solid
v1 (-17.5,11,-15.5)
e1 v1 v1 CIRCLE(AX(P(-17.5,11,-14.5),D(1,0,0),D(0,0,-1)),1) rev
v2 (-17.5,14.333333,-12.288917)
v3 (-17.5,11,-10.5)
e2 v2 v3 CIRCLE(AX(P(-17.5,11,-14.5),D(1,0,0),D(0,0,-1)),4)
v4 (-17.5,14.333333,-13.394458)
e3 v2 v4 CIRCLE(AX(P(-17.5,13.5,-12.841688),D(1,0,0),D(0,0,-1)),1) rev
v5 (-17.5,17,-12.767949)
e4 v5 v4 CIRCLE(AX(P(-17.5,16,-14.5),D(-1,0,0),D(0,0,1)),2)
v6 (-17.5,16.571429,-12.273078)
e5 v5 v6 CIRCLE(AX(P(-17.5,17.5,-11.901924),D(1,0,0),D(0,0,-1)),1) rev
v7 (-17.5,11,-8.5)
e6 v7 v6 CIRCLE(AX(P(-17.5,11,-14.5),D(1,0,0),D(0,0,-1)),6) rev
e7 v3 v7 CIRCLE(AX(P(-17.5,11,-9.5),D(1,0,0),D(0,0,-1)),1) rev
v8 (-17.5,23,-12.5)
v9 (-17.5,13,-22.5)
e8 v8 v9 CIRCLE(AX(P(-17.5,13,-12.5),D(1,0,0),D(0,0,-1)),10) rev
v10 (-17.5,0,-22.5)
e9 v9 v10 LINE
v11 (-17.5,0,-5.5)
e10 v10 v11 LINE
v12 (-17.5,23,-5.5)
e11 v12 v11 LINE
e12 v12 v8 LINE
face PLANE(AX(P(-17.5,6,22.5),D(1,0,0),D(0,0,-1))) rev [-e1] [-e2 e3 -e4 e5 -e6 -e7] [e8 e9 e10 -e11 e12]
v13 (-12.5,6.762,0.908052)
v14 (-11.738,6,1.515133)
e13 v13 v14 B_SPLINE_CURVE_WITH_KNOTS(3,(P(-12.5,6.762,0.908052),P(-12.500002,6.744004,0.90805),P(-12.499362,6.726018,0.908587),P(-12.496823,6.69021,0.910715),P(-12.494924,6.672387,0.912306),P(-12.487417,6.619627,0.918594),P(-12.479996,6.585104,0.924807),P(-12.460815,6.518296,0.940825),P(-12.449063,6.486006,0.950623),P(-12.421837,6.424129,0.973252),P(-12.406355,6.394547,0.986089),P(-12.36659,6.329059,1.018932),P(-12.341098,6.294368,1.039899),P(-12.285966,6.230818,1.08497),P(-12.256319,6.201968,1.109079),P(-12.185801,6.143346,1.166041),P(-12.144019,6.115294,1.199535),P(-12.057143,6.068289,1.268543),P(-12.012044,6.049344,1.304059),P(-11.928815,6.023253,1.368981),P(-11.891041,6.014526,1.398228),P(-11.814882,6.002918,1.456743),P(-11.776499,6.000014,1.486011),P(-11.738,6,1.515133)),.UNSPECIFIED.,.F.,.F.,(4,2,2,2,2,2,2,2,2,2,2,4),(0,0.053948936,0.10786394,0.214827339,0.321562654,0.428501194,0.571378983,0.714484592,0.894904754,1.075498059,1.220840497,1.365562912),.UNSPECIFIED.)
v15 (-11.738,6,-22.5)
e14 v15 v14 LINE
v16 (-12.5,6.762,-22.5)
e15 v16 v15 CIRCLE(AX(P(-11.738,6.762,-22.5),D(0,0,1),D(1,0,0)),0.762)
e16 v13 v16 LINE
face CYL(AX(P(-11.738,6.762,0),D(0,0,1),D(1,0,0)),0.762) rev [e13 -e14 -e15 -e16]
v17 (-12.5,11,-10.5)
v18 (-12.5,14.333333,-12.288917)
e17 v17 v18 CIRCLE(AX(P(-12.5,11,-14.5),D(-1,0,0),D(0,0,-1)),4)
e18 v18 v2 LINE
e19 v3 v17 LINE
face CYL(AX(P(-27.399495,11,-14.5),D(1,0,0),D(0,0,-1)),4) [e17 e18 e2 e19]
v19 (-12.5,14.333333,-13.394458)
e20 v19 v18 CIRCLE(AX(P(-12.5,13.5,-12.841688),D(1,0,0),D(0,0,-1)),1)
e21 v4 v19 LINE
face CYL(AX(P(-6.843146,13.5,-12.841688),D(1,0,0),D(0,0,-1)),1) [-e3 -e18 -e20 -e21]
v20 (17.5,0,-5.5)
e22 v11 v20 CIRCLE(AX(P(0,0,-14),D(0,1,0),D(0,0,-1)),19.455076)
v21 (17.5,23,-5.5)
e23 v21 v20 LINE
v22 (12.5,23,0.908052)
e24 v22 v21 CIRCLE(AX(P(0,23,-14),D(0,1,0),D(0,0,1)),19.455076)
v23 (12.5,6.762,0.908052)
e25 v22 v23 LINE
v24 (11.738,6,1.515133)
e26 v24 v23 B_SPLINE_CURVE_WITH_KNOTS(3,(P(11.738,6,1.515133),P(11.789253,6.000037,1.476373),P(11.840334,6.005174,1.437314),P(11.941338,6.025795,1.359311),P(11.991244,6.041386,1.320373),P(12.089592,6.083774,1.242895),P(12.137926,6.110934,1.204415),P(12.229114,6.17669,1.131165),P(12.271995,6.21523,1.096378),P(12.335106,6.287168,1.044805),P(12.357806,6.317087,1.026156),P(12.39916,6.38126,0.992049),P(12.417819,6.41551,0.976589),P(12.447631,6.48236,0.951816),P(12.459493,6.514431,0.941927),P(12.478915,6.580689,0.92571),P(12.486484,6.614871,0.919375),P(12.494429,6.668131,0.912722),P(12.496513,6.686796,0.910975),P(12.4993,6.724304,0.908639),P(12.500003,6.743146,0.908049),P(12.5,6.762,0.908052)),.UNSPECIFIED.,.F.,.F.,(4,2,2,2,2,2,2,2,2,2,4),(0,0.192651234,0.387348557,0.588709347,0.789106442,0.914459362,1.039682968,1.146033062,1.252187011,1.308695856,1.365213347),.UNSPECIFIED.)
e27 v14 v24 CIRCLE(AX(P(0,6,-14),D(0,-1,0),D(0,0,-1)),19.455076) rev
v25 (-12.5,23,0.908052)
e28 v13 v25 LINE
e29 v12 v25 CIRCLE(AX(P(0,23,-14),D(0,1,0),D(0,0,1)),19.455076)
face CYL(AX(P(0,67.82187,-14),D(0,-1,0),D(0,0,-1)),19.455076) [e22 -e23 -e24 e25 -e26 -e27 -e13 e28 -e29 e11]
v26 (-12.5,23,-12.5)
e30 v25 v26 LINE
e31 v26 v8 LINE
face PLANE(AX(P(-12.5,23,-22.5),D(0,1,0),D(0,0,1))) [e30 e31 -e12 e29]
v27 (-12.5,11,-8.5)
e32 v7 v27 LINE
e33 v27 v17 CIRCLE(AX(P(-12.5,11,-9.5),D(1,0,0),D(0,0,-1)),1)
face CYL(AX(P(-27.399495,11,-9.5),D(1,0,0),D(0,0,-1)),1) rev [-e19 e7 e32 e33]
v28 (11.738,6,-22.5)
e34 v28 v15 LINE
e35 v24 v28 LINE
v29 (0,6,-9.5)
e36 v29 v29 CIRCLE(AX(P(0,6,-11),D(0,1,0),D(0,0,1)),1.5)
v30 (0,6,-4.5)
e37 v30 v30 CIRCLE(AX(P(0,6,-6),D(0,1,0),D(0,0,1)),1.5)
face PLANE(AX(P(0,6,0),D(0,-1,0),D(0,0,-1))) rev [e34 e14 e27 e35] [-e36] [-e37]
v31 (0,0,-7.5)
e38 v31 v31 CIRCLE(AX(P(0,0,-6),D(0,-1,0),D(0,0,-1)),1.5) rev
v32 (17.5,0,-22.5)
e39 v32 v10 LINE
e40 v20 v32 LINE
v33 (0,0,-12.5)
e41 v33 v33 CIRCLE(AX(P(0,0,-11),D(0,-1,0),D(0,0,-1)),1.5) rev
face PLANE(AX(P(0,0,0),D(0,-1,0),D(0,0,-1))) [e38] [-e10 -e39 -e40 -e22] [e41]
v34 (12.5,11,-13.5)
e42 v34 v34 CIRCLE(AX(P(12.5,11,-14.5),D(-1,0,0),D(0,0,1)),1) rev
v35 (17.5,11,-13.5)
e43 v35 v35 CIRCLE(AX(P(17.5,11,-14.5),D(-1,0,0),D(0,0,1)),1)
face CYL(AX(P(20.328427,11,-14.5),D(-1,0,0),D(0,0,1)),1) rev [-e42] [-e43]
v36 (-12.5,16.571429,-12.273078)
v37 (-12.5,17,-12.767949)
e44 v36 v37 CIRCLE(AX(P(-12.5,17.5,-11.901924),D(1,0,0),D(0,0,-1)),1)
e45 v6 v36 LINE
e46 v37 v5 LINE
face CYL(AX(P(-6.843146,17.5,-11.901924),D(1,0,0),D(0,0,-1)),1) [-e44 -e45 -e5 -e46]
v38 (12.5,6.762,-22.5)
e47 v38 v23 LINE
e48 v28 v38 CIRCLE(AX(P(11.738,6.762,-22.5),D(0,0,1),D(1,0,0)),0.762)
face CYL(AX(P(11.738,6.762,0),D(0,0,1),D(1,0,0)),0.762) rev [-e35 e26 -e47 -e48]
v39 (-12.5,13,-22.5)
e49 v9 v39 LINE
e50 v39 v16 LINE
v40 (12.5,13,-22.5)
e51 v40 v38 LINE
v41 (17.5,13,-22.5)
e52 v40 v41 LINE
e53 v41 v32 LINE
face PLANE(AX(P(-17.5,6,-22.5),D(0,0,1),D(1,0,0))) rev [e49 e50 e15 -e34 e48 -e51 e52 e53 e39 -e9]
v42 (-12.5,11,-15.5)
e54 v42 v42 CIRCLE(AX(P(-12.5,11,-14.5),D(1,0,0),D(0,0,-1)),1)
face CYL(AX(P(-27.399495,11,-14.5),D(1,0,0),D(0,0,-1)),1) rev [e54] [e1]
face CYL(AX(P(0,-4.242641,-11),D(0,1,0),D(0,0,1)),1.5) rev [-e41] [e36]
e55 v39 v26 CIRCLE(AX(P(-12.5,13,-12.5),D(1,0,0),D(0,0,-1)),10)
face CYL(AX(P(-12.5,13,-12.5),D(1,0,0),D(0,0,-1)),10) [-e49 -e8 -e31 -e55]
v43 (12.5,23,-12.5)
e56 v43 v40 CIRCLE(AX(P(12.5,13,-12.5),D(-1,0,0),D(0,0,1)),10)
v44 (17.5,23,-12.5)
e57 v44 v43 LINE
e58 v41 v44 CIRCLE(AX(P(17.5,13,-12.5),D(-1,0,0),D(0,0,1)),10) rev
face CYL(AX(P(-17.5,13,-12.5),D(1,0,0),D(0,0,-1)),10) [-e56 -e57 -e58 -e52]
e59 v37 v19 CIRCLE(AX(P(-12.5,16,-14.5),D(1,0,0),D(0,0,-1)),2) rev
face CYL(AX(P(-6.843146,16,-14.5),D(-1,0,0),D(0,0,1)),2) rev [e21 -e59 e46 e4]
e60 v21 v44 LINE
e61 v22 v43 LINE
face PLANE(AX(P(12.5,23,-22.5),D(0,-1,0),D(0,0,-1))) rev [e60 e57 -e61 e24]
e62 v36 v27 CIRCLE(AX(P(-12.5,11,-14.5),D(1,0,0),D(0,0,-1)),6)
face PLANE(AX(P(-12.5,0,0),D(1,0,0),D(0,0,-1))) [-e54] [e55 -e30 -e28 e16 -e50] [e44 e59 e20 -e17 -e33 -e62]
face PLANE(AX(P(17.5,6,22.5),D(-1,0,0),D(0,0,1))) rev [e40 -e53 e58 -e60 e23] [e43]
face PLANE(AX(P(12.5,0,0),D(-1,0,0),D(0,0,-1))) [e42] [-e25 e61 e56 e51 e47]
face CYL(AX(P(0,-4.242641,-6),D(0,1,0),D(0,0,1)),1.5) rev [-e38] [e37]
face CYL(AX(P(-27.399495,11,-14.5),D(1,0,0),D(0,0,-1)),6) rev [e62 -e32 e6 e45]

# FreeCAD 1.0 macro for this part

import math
import FreeCAD as App
import Part
import Sketcher


def edges_at(feature, points):
    """Names of the edges that pass closest to the given points."""
    edges = feature.Shape.Edges
    near = lambda p: min(range(len(edges)), key=lambda i: edges[i].distToShape(Part.Vertex(*p))[0])
    return sorted({f"Edge{near(p) + 1}" for p in points})


def add_polygon(sketch, points):
    """Adds a closed chain of lines whose ends are joined by coincident constraints."""
    first, n = sketch.GeometryCount, len(points)
    for a, b in zip(points, points[1:] + points[:1]):
        sketch.addGeometry(Part.LineSegment(App.Vector(*a, 0), App.Vector(*b, 0)), False)
    for i in range(n):
        sketch.addConstraint(Sketcher.Constraint("Coincident", first + i, 2, first + (i + 1) % n, 1))

doc = App.newDocument("Part")
params = doc.addObject("Spreadsheet::Sheet", "Params")
for row, (alias, value) in enumerate([
    ("sketch1_width", "35 mm"),
    ("sketch1_height", "45 mm"),
    ("pad1_length", "6 mm"),
    ("sketch2_width", "17 mm"),
    ("sketch2_height", "45 mm"),
    ("pad2_length", "5 mm"),
    ("sketch3_diameter", "2 mm"),
    ("sketch3_radius", "6 mm"),
    ("pocket1_length", "5 mm"),
    ("sketch4_diameter", "2 mm"),
    ("pocket2_length", "30 mm"),
    ("sketch5_diameter", "4 mm"),
    ("pocket3_length", "5 mm"),
    ("fillet_radius", "0.762 mm"),
    ("fillet2_radius", "10 mm"),
    ("fillet3_radius", "1 mm"),
    ("sketch6_width", "35 mm"),
    ("sketch6_height", "28 mm"),
    ("pocket4_length", "23 mm"),
    ("sketch7_diameter", "3 mm"),
    ("pocket5_length", "6 mm"),
], start=1):
    params.set(f"A{row}", alias)
    params.set(f"B{row}", "=" + value)
    params.setAlias(f"B{row}", alias)

body = doc.addObject("PartDesign::Body", "Body")

# Sketch on XZ plane
sketch1 = body.newObject("Sketcher::SketchObject", "Sketch")
sketch1.AttachmentSupport = (doc.getObject("XZ_Plane"), [""])
sketch1.MapMode = "FlatFace"
add_polygon(sketch1, [(-18, -22), (-18, 22), (18, 22), (18, -22)])  # lines 0-3
sketch1.addConstraint([
    Sketcher.Constraint("Vertical", 0),
    Sketcher.Constraint("Horizontal", 1),
    Sketcher.Constraint("Vertical", 2),
    Sketcher.Constraint("Horizontal", 3),
    Sketcher.Constraint("Symmetric", 0, 2, 2, 2, -1, 1),
    Sketcher.Constraint("DistanceX", 1, 1, 1, 2, 35.0),
    Sketcher.Constraint("DistanceY", 0, 1, 0, 2, 45.0),
])
sketch1.setExpression("Constraints[9]", "Params.sketch1_width")
sketch1.setExpression("Constraints[10]", "Params.sketch1_height")
pad1 = body.newObject("PartDesign::Pad", "Pad")
pad1.Profile = sketch1
pad1.setExpression("Length", "Params.pad1_length")
pad1.Reversed = True

# Sketch on YZ plane
sketch2 = body.newObject("Sketcher::SketchObject", "Sketch001")
sketch2.AttachmentSupport = (doc.getObject("YZ_Plane"), [""])
sketch2.MapMode = "FlatFace"
sketch2.AttachmentOffset = App.Placement(App.Vector(0, 0, -17.5), App.Rotation())
add_polygon(sketch2, [(23, -22), (6, -22), (6, 22), (23, 22)])  # lines 0-3
sketch2.addConstraint([
    Sketcher.Constraint("Horizontal", 0),
    Sketcher.Constraint("Vertical", 1),
    Sketcher.Constraint("Horizontal", 2),
    Sketcher.Constraint("Vertical", 3),
    Sketcher.Constraint("DistanceX", 0, 2, 0, 1, 17.0),
    Sketcher.Constraint("DistanceY", 1, 1, 1, 2, 45.0),
    Sketcher.Constraint("DistanceX", -1, 1, 0, 2, 6.0),
    Sketcher.Constraint("DistanceY", 0, 2, -1, 1, 22.5),
])
sketch2.setExpression("Constraints[8]", "Params.sketch2_width")
sketch2.setExpression("Constraints[9]", "Params.sketch2_height")
pad2 = body.newObject("PartDesign::Pad", "Pad001")
pad2.Profile = sketch2
pad2.setExpression("Length", "Params.pad2_length")
doc.recompute()

mirrored = body.newObject("PartDesign::Mirrored", "Mirrored")
mirrored.Originals = [pad2]
mirrored.MirrorPlane = (doc.getObject("YZ_Plane"), [""])
body.Tip = mirrored

# Sketch on YZ plane
sketch3 = body.newObject("Sketcher::SketchObject", "Sketch002")
sketch3.AttachmentSupport = (doc.getObject("YZ_Plane"), [""])
sketch3.MapMode = "FlatFace"
sketch3.AttachmentOffset = App.Placement(App.Vector(0, 0, -12.5), App.Rotation())
sketch3.addGeometry([
    Part.Circle(App.Vector(11, -14.5, 0), App.Vector(0, 0, 1), 1),  # 0
    Part.ArcOfCircle(Part.Circle(App.Vector(11, -14.5, 0), App.Vector(0, 0, 1), 6), math.radians(0), math.radians(90)),  # 1
    Part.ArcOfCircle(Part.Circle(App.Vector(11, -9.5, 0), App.Vector(0, 0, 1), 1), math.radians(90), math.radians(270)),  # 2
    Part.ArcOfCircle(Part.Circle(App.Vector(11, -14.5, 0), App.Vector(0, 0, 1), 4), math.radians(0), math.radians(90)),  # 3
    Part.ArcOfCircle(Part.Circle(App.Vector(16, -14.5, 0), App.Vector(0, 0, 1), 1), math.radians(180), math.radians(360)),  # 4
], False)
sketch3.addConstraint([
    Sketcher.Constraint("Tangent", 1, 2, 2, 1),
    Sketcher.Constraint("Tangent", 2, 2, 3, 2),
    Sketcher.Constraint("Tangent", 3, 1, 4, 1),
    Sketcher.Constraint("Tangent", 4, 2, 1, 1),
    Sketcher.Constraint("Coincident", 1, 3, 0, 3),
    Sketcher.Constraint("Coincident", 3, 3, 0, 3),
    Sketcher.Constraint("Equal", 0, 2),
    Sketcher.Constraint("Horizontal", 3, 3, 4, 3),
    Sketcher.Constraint("Vertical", 1, 3, 2, 3),
    Sketcher.Constraint("Diameter", 0, 2.0),
    Sketcher.Constraint("Radius", 1, 6.0),
    Sketcher.Constraint("DistanceX", -1, 1, 0, 3, 11.0),
    Sketcher.Constraint("DistanceY", 0, 3, -1, 1, 14.5),
])
sketch3.setExpression("Constraints[9]", "Params.sketch3_diameter")
sketch3.setExpression("Constraints[10]", "Params.sketch3_radius")
pocket1 = body.newObject("PartDesign::Pocket", "Pocket")
pocket1.Profile = sketch3
pocket1.setExpression("Length", "Params.pocket1_length")

# Sketch on YZ plane
sketch4 = body.newObject("Sketcher::SketchObject", "Sketch003")
sketch4.AttachmentSupport = (doc.getObject("YZ_Plane"), [""])
sketch4.MapMode = "FlatFace"
sketch4.AttachmentOffset = App.Placement(App.Vector(0, 0, -12.5), App.Rotation())
sketch4.addGeometry(Part.Circle(App.Vector(11, -14.5, 0), App.Vector(0, 0, 1), 1), False)
sketch4.addConstraint([
    Sketcher.Constraint("Diameter", 0, 2.0),
    Sketcher.Constraint("DistanceX", -1, 1, 0, 3, 11.0),
    Sketcher.Constraint("DistanceY", 0, 3, -1, 1, 14.5),
])
sketch4.setExpression("Constraints[0]", "Params.sketch4_diameter")
pocket2 = body.newObject("PartDesign::Pocket", "Pocket001")
pocket2.Profile = sketch4
pocket2.setExpression("Length", "Params.pocket2_length")
pocket2.Reversed = True

# Sketch on YZ plane
sketch5 = body.newObject("Sketcher::SketchObject", "Sketch004")
sketch5.AttachmentSupport = (doc.getObject("YZ_Plane"), [""])
sketch5.MapMode = "FlatFace"
sketch5.AttachmentOffset = App.Placement(App.Vector(0, 0, -17.5), App.Rotation())
sketch5.addGeometry(Part.Circle(App.Vector(16, -14.5, 0), App.Vector(0, 0, 1), 2), False)
sketch5.addConstraint([
    Sketcher.Constraint("Diameter", 0, 4.0),
    Sketcher.Constraint("DistanceX", -1, 1, 0, 3, 16.0),
    Sketcher.Constraint("DistanceY", 0, 3, -1, 1, 14.5),
])
sketch5.setExpression("Constraints[0]", "Params.sketch5_diameter")
pocket3 = body.newObject("PartDesign::Pocket", "Pocket002")
pocket3.Profile = sketch5
pocket3.setExpression("Length", "Params.pocket3_length")
pocket3.Reversed = True
doc.recompute()

fillet = body.newObject("PartDesign::Fillet", "Fillet")
fillet.Base = (pocket3, edges_at(pocket3, [(-12.5, 6, 0), (12.5, 6, 0)]))
fillet.setExpression("Radius", "Params.fillet_radius")
doc.recompute()

fillet2 = body.newObject("PartDesign::Fillet", "Fillet001")
fillet2.Base = (fillet, edges_at(fillet, [
    (-15, 23, -22.5),
    (-15, 23, 22.5),
    (15, 23, 22.5),
    (15, 23, -22.5),
]))
fillet2.setExpression("Radius", "Params.fillet2_radius")
doc.recompute()

fillet3 = body.newObject("PartDesign::Fillet", "Fillet002")
fillet3.Base = (fillet2, edges_at(fillet2, [(-15, 16.7, -12.627), (-15, 14.7, -12.98)]))
fillet3.setExpression("Radius", "Params.fillet3_radius")

# Sketch on XZ plane
sketch6 = body.newObject("Sketcher::SketchObject", "Sketch005")
sketch6.AttachmentSupport = (doc.getObject("XZ_Plane"), [""])
sketch6.MapMode = "FlatFace"
sketch6.addGeometry([
    Part.LineSegment(App.Vector(18, -6, 0), App.Vector(18, 22, 0)),
    Part.LineSegment(App.Vector(18, 22, 0), App.Vector(-18, 22, 0)),
    Part.LineSegment(App.Vector(-18, 22, 0), App.Vector(-18, -6, 0)),
    Part.ArcOfCircle(Part.Circle(App.Vector(0, -14, 0), App.Vector(0, 0, 1), 19), math.radians(26), math.radians(154)),
], False)
sketch6.addConstraint([
    Sketcher.Constraint("Coincident", 0, 2, 1, 1),
    Sketcher.Constraint("Coincident", 1, 2, 2, 1),
    Sketcher.Constraint("Coincident", 2, 2, 3, 2),
    Sketcher.Constraint("Coincident", 3, 1, 0, 1),
    Sketcher.Constraint("Vertical", 0),
    Sketcher.Constraint("Horizontal", 1),
    Sketcher.Constraint("Vertical", 2),
    Sketcher.Constraint("Symmetric", 2, 2, 3, 1, -2),
    Sketcher.Constraint("DistanceX", 1, 2, 1, 1, 35.0),
    Sketcher.Constraint("DistanceY", 0, 1, 0, 2, 28.0),
    Sketcher.Constraint("DistanceY", 3, 3, -1, 1, 14.0),
    Sketcher.Constraint("DistanceY", -1, 1, 0, 2, 22.5),
])
sketch6.setExpression("Constraints[8]", "Params.sketch6_width")
sketch6.setExpression("Constraints[9]", "Params.sketch6_height")
pocket4 = body.newObject("PartDesign::Pocket", "Pocket003")
pocket4.Profile = sketch6
pocket4.setExpression("Length", "Params.pocket4_length")

# Sketch on XZ plane
sketch7 = body.newObject("Sketcher::SketchObject", "Sketch006")
sketch7.AttachmentSupport = (doc.getObject("XZ_Plane"), [""])
sketch7.MapMode = "FlatFace"
sketch7.AttachmentOffset = App.Placement(App.Vector(0, 0, -6), App.Rotation())
sketch7.addGeometry([
    Part.Circle(App.Vector(0, -11, 0), App.Vector(0, 0, 1), 1.5),
    Part.Circle(App.Vector(0, -6, 0), App.Vector(0, 0, 1), 1.5),
], False)
sketch7.addConstraint([
    Sketcher.Constraint("Equal", 0, 1),
    Sketcher.Constraint("PointOnObject", 0, 3, -2),
    Sketcher.Constraint("PointOnObject", 1, 3, -2),
    Sketcher.Constraint("Diameter", 0, 3.0),
    Sketcher.Constraint("DistanceY", 0, 3, -1, 1, 11.0),
    Sketcher.Constraint("DistanceY", 1, 3, -1, 1, 6.0),
])
sketch7.setExpression("Constraints[3]", "Params.sketch7_diameter")
pocket5 = body.newObject("PartDesign::Pocket", "Pocket004")
pocket5.Profile = sketch7
pocket5.setExpression("Length", "Params.pocket5_length")
pocket5.Reversed = True

doc.recompute()
